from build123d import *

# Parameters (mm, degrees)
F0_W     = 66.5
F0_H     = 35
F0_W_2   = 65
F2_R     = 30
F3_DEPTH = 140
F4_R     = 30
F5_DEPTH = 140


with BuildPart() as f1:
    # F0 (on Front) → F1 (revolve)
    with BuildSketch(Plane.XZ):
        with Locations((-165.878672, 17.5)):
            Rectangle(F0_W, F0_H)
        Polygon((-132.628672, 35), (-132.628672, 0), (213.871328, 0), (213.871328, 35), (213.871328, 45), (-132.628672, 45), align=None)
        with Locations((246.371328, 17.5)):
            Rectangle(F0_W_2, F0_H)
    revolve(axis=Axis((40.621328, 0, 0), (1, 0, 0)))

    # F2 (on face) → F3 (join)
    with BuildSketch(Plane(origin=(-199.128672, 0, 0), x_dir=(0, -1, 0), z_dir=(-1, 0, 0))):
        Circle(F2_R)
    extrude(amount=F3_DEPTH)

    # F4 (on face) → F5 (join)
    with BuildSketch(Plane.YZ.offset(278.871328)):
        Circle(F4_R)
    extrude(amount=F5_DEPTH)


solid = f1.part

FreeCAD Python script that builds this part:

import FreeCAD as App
import Part
import Sketcher

V = App.Vector


def add_polygon(sketch, points):
    """Adds a closed chain of lines whose ends are joined by coincident constraints."""
    first, n = sketch.GeometryCount, len(points)
    for a, b in zip(points, points[1:] + points[:1]):
        sketch.addGeometry(Part.LineSegment(App.Vector(*a, 0), App.Vector(*b, 0)), False)
    for i in range(n):
        sketch.addConstraint(Sketcher.Constraint("Coincident", first + i, 2, first + (i + 1) % n, 1))

doc = App.newDocument("Part")
body = doc.addObject("PartDesign::Body", "Body")

# Sketch on XZ plane
sketch1 = body.newObject("Sketcher::SketchObject", "Sketch")
sketch1.AttachmentSupport = (doc.getObject("XZ_Plane"), [""])
sketch1.MapMode = "FlatFace"
add_polygon(sketch1, [(-199, 35), (-199, 0), (279, 0), (279, 35), (214, 35), (214, 45), (-133, 45), (-133, 35)])  # lines 0-7
sketch1.addConstraint([
    Sketcher.Constraint("Vertical", 0),
    Sketcher.Constraint("Horizontal", 1),
    Sketcher.Constraint("Vertical", 2),
    Sketcher.Constraint("Horizontal", 3),
    Sketcher.Constraint("Vertical", 4),
    Sketcher.Constraint("Horizontal", 5),
    Sketcher.Constraint("Vertical", 6),
    Sketcher.Constraint("Horizontal", 7),
    Sketcher.Constraint("PointOnObject", 0, 2, -1),
    Sketcher.Constraint("Horizontal", 3, 2, 6, 2),
    Sketcher.Constraint("DistanceX", 1, 1, 1, 2, 478.0),
    Sketcher.Constraint("DistanceX", 3, 2, 3, 1, 65.0),
    Sketcher.Constraint("DistanceY", 0, 2, 0, 1, 35.0),
    Sketcher.Constraint("DistanceY", 4, 1, 4, 2, 10.0),
    Sketcher.Constraint("DistanceX", 5, 2, 5, 1, 346.5),
    Sketcher.Constraint("DistanceX", 0, 2, -1, 1, 199.128672),
])
revolution = body.newObject("PartDesign::Revolution", "Revolution")
revolution.Profile = sketch1
revolution.ReferenceAxis = (sketch1, ["H_Axis"])
revolution.Angle = 360

# Sketch on YZ plane
sketch2 = body.newObject("Sketcher::SketchObject", "Sketch001")
sketch2.AttachmentSupport = (doc.getObject("YZ_Plane"), [""])
sketch2.MapMode = "FlatFace"
sketch2.AttachmentOffset = App.Placement(V(0, 0, -199.128672), App.Rotation())
sketch2.addGeometry(Part.Circle(V(0, 0, 0), V(0, 0, 1), 30), False)
sketch2.addConstraint([
    Sketcher.Constraint("Coincident", 0, 3, -1, 1),
    Sketcher.Constraint("Diameter", 0, 60.0),
])
pad1 = body.newObject("PartDesign::Pad", "Pad")
pad1.Profile = sketch2
pad1.Length = 140
pad1.Reversed = True

# Sketch on YZ plane
sketch3 = body.newObject("Sketcher::SketchObject", "Sketch002")
sketch3.AttachmentSupport = (doc.getObject("YZ_Plane"), [""])
sketch3.MapMode = "FlatFace"
sketch3.AttachmentOffset = App.Placement(V(0, 0, 278.871328), App.Rotation())
sketch3.addGeometry(Part.Circle(V(0, 0, 0), V(0, 0, 1), 30), False)
sketch3.addConstraint([
    Sketcher.Constraint("Coincident", 0, 3, -1, 1),
    Sketcher.Constraint("Diameter", 0, 60.0),
])
pad2 = body.newObject("PartDesign::Pad", "Pad001")
pad2.Profile = sketch3
pad2.Length = 140

doc.recompute()
